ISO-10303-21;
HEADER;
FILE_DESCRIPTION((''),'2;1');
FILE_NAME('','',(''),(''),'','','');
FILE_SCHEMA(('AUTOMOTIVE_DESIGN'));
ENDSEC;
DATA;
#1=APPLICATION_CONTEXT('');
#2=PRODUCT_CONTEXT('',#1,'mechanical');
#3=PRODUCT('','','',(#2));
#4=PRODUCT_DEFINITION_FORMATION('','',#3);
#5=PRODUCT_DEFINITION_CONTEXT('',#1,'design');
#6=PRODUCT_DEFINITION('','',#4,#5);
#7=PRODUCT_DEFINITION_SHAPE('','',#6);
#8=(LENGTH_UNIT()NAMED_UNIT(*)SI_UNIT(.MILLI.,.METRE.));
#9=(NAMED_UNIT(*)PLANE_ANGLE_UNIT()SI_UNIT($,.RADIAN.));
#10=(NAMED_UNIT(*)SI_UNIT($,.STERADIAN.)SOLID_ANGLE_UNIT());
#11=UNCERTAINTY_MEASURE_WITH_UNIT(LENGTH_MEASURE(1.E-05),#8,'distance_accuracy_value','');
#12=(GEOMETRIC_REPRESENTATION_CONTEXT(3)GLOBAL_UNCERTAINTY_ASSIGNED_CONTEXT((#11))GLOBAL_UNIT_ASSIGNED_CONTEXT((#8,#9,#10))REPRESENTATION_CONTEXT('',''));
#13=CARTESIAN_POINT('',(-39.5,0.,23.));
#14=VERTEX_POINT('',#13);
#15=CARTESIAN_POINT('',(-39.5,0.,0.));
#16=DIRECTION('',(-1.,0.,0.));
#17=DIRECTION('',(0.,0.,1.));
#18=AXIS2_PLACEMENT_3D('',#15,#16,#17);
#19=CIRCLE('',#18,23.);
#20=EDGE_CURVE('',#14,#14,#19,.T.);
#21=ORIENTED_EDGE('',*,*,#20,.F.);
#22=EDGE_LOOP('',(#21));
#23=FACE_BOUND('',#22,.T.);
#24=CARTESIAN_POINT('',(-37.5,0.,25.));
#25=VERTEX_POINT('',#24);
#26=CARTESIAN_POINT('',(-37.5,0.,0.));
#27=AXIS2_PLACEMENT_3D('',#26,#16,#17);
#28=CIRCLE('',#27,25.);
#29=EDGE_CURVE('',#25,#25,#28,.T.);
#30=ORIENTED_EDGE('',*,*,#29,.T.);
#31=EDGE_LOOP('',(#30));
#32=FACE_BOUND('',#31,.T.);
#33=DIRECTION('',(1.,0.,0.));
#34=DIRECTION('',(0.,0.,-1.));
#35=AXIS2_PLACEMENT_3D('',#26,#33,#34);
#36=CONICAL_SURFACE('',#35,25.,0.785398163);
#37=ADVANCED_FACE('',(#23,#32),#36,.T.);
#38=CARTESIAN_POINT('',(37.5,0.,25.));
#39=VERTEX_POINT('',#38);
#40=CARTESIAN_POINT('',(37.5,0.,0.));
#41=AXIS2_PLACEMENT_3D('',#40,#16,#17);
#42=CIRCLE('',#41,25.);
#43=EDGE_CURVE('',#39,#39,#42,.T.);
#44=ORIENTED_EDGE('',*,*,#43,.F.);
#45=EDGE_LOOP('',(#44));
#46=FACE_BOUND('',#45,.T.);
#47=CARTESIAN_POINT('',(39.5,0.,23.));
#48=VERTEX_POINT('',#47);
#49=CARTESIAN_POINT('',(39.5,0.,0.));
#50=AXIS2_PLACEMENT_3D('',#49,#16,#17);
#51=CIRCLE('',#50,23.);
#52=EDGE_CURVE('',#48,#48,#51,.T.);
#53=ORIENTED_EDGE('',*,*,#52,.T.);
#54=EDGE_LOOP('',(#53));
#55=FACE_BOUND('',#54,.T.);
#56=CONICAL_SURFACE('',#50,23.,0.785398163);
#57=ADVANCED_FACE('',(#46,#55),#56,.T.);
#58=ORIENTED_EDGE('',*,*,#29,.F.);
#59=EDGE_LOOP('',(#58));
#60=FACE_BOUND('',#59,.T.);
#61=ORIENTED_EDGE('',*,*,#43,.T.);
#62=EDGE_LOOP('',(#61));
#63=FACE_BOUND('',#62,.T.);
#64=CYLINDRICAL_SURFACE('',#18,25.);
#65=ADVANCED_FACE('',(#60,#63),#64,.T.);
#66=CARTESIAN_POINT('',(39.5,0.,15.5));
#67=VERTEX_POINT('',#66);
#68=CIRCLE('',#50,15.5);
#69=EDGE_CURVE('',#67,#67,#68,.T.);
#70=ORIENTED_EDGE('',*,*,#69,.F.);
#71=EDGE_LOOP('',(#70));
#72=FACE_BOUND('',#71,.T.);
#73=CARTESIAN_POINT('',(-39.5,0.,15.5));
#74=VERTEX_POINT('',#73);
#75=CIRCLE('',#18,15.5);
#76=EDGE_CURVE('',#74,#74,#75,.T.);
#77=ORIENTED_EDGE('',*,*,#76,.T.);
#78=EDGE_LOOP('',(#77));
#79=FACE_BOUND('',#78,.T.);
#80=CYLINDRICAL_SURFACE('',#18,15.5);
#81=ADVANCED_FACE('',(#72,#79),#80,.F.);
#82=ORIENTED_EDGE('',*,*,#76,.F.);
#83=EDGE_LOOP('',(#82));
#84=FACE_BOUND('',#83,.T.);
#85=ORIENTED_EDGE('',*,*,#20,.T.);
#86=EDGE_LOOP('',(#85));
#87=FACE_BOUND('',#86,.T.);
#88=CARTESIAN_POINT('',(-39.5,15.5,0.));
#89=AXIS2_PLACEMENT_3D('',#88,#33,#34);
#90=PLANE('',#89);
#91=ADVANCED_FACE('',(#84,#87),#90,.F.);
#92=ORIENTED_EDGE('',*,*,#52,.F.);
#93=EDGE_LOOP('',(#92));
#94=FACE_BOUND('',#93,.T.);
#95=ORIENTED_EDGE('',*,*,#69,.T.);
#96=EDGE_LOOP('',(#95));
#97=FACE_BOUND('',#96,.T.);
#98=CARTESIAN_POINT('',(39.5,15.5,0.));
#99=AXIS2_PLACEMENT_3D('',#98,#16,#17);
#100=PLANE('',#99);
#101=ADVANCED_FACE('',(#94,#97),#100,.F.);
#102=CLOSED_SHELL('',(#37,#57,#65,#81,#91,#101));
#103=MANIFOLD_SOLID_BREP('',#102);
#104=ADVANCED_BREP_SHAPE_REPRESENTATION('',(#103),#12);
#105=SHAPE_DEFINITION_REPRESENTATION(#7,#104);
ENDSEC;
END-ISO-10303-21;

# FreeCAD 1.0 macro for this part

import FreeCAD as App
import Part
import Sketcher
Q = App.Units.Quantity

doc = App.newDocument("Part")
params = doc.addObject("Spreadsheet::Sheet", "Params")
for row, (alias, value) in enumerate([
    ("sketch1_width", "79 mm"),
    ("sketch1_width2", "75 mm"),
    ("sketch1_height", "7.5 mm"),
    ("revolution_angle", "360 deg"),
], start=1):
    params.set(f"A{row}", alias)
    params.set(f"B{row}", "=" + value)
    params.setAlias(f"B{row}", alias)

body = doc.addObject("PartDesign::Body", "Body")

# Sketch on XY plane
sketch1 = doc.addObject("Sketcher::SketchObject", "Sketch")
body.addObject(sketch1)
sketch1.AttachmentSupport = (doc.XY_Plane, [""])
sketch1.MapMode = "FlatFace"
sketch1.addGeometry([
    Part.LineSegment(App.Vector(-37.5, 25, 0), App.Vector(-39.5, 23, 0)),  # 0
    Part.LineSegment(App.Vector(-39.5, 23, 0), App.Vector(-39.5, 15.5, 0)),  # 1
    Part.LineSegment(App.Vector(-39.5, 15.5, 0), App.Vector(39.5, 15.5, 0)),  # 2
    Part.LineSegment(App.Vector(39.5, 15.5, 0), App.Vector(39.5, 23, 0)),  # 3
    Part.LineSegment(App.Vector(39.5, 23, 0), App.Vector(37.5, 25, 0)),  # 4
    Part.LineSegment(App.Vector(37.5, 25, 0), App.Vector(-37.5, 25, 0)),  # 5
], False)
sketch1.addConstraint([
    Sketcher.Constraint("Coincident", 0, 2, 1, 1),
    Sketcher.Constraint("Coincident", 1, 2, 2, 1),
    Sketcher.Constraint("Coincident", 2, 2, 3, 1),
    Sketcher.Constraint("Coincident", 3, 2, 4, 1),
    Sketcher.Constraint("Coincident", 4, 2, 5, 1),
    Sketcher.Constraint("Coincident", 5, 2, 0, 1),
    Sketcher.Constraint("Vertical", 1),
    Sketcher.Constraint("Horizontal", 2),
    Sketcher.Constraint("Vertical", 3),
    Sketcher.Constraint("Horizontal", 5),
    Sketcher.Constraint("Symmetric", 0, 2, 3, 2, -2),
    Sketcher.Constraint("Perpendicular", 0, 4),
    Sketcher.Constraint("Equal", 0, 4),
    Sketcher.Constraint("DistanceX", 2, 1, 2, 2, Q("79 mm")),
    Sketcher.Constraint("DistanceX", 5, 2, 5, 1, Q("75 mm")),
    Sketcher.Constraint("DistanceY", 1, 2, 1, 1, Q("7.5 mm")),
    Sketcher.Constraint("DistanceY", -1, 1, 0, 2, Q("23 mm")),
])
sketch1.setExpression("Constraints[13]", "Params.sketch1_width")
sketch1.setExpression("Constraints[14]", "Params.sketch1_width2")
sketch1.setExpression("Constraints[15]", "Params.sketch1_height")
revolution = doc.addObject("PartDesign::Revolution", "Revolution")
body.addObject(revolution)
revolution.Profile = sketch1
revolution.ReferenceAxis = (sketch1, ["H_Axis"])
revolution.setExpression("Angle", "Params.revolution_angle")

doc.recompute()
